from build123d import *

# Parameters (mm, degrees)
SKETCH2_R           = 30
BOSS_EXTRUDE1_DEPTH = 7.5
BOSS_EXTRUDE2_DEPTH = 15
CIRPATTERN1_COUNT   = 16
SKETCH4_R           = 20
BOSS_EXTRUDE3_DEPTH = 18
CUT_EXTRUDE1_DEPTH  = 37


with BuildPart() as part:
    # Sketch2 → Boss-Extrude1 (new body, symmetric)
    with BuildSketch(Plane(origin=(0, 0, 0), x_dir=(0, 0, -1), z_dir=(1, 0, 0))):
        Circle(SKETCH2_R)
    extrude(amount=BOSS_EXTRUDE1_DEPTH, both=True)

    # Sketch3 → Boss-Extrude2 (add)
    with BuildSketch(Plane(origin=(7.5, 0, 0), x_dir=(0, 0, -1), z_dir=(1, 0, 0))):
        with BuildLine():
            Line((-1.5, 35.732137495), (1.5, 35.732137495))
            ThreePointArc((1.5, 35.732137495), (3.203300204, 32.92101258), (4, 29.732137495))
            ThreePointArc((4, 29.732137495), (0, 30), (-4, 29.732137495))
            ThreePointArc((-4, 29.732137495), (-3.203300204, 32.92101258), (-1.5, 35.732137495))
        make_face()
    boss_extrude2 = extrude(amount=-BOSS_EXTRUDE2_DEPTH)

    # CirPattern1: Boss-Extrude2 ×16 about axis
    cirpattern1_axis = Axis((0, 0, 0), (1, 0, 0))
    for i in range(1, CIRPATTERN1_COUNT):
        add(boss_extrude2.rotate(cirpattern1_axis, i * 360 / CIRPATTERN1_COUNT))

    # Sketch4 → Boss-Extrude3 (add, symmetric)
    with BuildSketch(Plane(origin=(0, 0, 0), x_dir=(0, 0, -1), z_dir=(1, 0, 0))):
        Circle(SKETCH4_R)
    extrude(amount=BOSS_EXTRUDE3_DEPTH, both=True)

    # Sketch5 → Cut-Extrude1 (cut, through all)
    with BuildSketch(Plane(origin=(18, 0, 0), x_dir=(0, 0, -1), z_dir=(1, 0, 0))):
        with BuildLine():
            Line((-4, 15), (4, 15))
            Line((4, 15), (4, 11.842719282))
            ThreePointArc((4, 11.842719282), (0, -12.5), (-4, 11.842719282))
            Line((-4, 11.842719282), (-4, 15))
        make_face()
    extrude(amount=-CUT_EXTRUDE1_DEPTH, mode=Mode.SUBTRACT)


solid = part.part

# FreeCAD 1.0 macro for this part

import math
import FreeCAD as App
import Part
import Sketcher

V = App.Vector

doc = App.newDocument("Part")
body = doc.addObject("PartDesign::Body", "Body")

# Sketch on YZ plane
sketch1 = doc.addObject("Sketcher::SketchObject", "Sketch")
body.addObject(sketch1)
sketch1.AttachmentSupport = (doc.YZ_Plane, [""])
sketch1.MapMode = "FlatFace"
sketch1.addGeometry(Part.Circle(V(0, 0, 0), V(0, 0, 1), 30), False)
sketch1.addConstraint([
    Sketcher.Constraint("Coincident", 0, 3, -1, 1),
    Sketcher.Constraint("Diameter", 0, 60.0),
])
pad1 = doc.addObject("PartDesign::Pad", "Pad")
body.addObject(pad1)
pad1.Profile = sketch1
pad1.Length = 15
pad1.Midplane = True

# Sketch on YZ plane
sketch2 = doc.addObject("Sketcher::SketchObject", "Sketch001")
body.addObject(sketch2)
sketch2.AttachmentSupport = (doc.YZ_Plane, [""])
sketch2.MapMode = "FlatFace"
sketch2.AttachmentOffset = App.Placement(V(0, 0, 7.5), App.Rotation())
sketch2.addGeometry([
    Part.LineSegment(V(35.7, -1.5, 0), V(35.7, 1.5, 0)),
    Part.ArcOfCircle(Part.Circle(V(28.7, -7, 0), V(0, 0, 1), 11), math.radians(50), math.radians(85)),
    Part.ArcOfCircle(Part.Circle(V(0, 0, 0), V(0, 0, 1), 30), math.radians(-7.66), math.radians(7.66)),
    Part.ArcOfCircle(Part.Circle(V(28.7, 7, 0), V(0, 0, 1), 11), math.radians(-85), math.radians(-50)),
], False)
sketch2.addConstraint([
    Sketcher.Constraint("Coincident", 0, 2, 1, 1),
    Sketcher.Constraint("Coincident", 1, 2, 2, 2),
    Sketcher.Constraint("Coincident", 2, 1, 3, 1),
    Sketcher.Constraint("Coincident", 3, 2, 0, 1),
    Sketcher.Constraint("Vertical", 0),
    Sketcher.Constraint("Coincident", 2, 3, -1, 1),
    Sketcher.Constraint("Equal", 1, 3),
    Sketcher.Constraint("Symmetric", 1, 3, 3, 3, -1),
    Sketcher.Constraint("Radius", 1, 11.0),
    Sketcher.Constraint("Radius", 2, 30.0),
    Sketcher.Constraint("DistanceY", 0, 1, 0, 2, 3.0),
    Sketcher.Constraint("DistanceY", -1, 1, 1, 2, 4.0),
    Sketcher.Constraint("DistanceX", 1, 2, 0, 2, 6.0),
])
pad2 = doc.addObject("PartDesign::Pad", "Pad001")
body.addObject(pad2)
pad2.Profile = sketch2
pad2.Length = 15
pad2.Reversed = True
doc.recompute()

polarpattern = doc.addObject("PartDesign::PolarPattern", "PolarPattern")
body.addObject(polarpattern)
polarpattern.Originals = [pad2]
polarpattern.Axis = (doc.X_Axis, [""])
polarpattern.Angle = 360
polarpattern.Occurrences = 16
body.Tip = polarpattern

# Sketch on YZ plane
sketch3 = doc.addObject("Sketcher::SketchObject", "Sketch002")
body.addObject(sketch3)
sketch3.AttachmentSupport = (doc.YZ_Plane, [""])
sketch3.MapMode = "FlatFace"
sketch3.addGeometry(Part.Circle(V(0, 0, 0), V(0, 0, 1), 20), False)
sketch3.addConstraint([
    Sketcher.Constraint("Coincident", 0, 3, -1, 1),
    Sketcher.Constraint("Diameter", 0, 40.0),
])
pad3 = doc.addObject("PartDesign::Pad", "Pad002")
body.addObject(pad3)
pad3.Profile = sketch3
pad3.Length = 36
pad3.Midplane = True

# Sketch on YZ plane
sketch4 = doc.addObject("Sketcher::SketchObject", "Sketch003")
body.addObject(sketch4)
sketch4.AttachmentSupport = (doc.YZ_Plane, [""])
sketch4.MapMode = "FlatFace"
sketch4.AttachmentOffset = App.Placement(V(0, 0, 18), App.Rotation())
sketch4.addGeometry([
    Part.LineSegment(V(15, -4, 0), V(15, 4, 0)),
    Part.LineSegment(V(15, 4, 0), V(11.8, 4, 0)),
    Part.ArcOfCircle(Part.Circle(V(0, 0, 0), V(0, 0, 1), 12.5), math.radians(19), math.radians(341)),
    Part.LineSegment(V(11.8, -4, 0), V(15, -4, 0)),
], False)
sketch4.addConstraint([
    Sketcher.Constraint("Coincident", 0, 2, 1, 1),
    Sketcher.Constraint("Coincident", 1, 2, 2, 1),
    Sketcher.Constraint("Coincident", 2, 2, 3, 1),
    Sketcher.Constraint("Coincident", 3, 2, 0, 1),
    Sketcher.Constraint("Vertical", 0),
    Sketcher.Constraint("Horizontal", 1),
    Sketcher.Constraint("Horizontal", 3),
    Sketcher.Constraint("Coincident", 2, 3, -1, 1),
    Sketcher.Constraint("Vertical", 1, 2, 2, 2),
    Sketcher.Constraint("Radius", 2, 12.5),
    Sketcher.Constraint("DistanceY", 0, 1, 0, 2, 8.0),
    Sketcher.Constraint("DistanceX", -1, 1, 0, 2, 15.0),
])
pocket1 = doc.addObject("PartDesign::Pocket", "Pocket")
body.addObject(pocket1)
pocket1.Profile = sketch4
pocket1.Type = "ThroughAll"

doc.recompute()
